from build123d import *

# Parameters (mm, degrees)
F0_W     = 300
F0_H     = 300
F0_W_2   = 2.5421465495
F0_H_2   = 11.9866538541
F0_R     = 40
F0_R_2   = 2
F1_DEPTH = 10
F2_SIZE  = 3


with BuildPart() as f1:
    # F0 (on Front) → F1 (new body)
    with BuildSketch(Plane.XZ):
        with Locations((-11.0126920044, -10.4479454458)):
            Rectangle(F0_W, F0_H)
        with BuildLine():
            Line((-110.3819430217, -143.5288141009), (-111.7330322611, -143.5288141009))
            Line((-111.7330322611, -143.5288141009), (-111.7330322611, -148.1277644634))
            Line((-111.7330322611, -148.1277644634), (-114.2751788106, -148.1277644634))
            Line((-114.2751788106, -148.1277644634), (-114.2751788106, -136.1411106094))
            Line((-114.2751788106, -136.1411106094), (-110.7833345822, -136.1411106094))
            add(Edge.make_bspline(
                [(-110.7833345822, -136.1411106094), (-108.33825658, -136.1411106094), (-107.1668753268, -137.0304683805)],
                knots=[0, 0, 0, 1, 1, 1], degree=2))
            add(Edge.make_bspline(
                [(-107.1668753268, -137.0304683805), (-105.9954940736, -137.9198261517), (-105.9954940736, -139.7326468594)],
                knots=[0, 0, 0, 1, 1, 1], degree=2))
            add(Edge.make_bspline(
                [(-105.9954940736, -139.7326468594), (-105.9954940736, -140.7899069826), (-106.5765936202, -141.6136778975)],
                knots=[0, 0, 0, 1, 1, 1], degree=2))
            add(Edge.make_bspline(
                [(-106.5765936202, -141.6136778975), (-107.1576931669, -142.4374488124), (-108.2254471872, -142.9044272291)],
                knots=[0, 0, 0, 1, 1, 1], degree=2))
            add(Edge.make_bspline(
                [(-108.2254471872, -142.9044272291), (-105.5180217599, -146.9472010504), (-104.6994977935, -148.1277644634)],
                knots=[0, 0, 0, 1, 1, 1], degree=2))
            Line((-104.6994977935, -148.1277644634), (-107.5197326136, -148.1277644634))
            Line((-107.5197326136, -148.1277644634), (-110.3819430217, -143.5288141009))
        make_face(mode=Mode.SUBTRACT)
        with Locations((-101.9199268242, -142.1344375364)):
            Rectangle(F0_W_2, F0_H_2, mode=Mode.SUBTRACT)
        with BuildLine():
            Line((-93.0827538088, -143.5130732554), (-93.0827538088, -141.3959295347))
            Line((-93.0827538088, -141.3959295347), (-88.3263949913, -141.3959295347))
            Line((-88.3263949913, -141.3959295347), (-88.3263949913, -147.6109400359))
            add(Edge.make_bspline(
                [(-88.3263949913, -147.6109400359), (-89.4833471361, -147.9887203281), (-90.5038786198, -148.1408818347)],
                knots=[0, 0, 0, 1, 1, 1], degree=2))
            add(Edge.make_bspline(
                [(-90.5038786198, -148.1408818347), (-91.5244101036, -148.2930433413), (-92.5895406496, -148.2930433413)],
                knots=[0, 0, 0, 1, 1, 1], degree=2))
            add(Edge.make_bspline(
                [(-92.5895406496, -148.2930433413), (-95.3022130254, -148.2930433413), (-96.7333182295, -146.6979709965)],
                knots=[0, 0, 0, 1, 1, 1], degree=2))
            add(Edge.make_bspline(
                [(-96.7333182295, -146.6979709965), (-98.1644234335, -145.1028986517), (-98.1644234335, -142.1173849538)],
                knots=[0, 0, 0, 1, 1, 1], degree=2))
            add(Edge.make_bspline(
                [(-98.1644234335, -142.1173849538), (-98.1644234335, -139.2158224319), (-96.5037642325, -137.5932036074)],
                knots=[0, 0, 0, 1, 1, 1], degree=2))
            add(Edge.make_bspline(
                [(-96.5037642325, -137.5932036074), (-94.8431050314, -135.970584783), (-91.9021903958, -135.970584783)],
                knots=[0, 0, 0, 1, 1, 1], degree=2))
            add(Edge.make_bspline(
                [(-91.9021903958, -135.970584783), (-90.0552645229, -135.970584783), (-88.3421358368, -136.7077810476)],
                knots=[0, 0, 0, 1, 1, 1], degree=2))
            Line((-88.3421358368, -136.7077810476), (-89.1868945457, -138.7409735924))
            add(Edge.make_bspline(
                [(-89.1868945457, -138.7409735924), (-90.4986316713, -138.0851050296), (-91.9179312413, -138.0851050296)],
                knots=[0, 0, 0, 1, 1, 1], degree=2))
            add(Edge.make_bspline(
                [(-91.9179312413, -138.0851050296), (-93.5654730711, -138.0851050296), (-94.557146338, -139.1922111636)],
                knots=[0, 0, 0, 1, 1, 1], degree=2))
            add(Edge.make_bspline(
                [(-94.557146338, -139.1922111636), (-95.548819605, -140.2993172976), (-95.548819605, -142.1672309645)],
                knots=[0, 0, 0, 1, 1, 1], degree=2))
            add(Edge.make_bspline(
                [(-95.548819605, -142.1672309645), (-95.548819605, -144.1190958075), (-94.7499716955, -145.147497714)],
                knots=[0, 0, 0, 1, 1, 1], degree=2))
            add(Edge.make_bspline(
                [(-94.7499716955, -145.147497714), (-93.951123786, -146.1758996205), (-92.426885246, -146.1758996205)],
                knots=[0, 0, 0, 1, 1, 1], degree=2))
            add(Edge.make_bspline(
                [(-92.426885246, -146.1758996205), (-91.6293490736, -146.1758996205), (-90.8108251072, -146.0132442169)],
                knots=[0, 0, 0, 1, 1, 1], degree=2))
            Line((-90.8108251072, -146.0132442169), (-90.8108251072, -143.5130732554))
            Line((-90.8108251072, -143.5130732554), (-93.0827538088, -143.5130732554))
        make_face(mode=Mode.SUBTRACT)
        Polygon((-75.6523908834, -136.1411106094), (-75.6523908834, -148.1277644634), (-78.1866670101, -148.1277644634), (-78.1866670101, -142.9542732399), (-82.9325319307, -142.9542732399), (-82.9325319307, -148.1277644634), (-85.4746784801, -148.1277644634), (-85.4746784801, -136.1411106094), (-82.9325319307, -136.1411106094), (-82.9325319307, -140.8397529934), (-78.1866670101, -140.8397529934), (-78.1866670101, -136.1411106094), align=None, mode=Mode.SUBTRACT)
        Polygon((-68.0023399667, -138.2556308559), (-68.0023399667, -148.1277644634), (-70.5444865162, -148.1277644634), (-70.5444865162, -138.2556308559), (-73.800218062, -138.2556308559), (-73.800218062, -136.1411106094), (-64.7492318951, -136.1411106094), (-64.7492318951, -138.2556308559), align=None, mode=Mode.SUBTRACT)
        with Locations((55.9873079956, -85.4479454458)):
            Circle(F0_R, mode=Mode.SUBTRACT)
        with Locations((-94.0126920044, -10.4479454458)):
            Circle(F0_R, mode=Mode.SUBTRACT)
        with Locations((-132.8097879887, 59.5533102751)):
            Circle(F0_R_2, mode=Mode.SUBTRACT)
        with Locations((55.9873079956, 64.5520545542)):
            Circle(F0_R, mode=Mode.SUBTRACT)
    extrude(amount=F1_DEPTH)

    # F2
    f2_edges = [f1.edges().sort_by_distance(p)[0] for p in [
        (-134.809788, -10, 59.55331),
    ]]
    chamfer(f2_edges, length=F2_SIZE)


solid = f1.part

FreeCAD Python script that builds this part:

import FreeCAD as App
import Part
import Sketcher
from FreeCAD import Vector


def edges_at(feature, points):
    """Names of the edges that pass closest to the given points."""
    edges = feature.Shape.Edges
    near = lambda p: min(range(len(edges)), key=lambda i: edges[i].distToShape(Part.Vertex(*p))[0])
    return sorted({f"Edge{near(p) + 1}" for p in points})


def add_polygon(sketch, points):
    """Adds a closed chain of lines whose ends are joined by coincident constraints."""
    first, n = sketch.GeometryCount, len(points)
    for a, b in zip(points, points[1:] + points[:1]):
        sketch.addGeometry(Part.LineSegment(App.Vector(*a, 0), App.Vector(*b, 0)), False)
    for i in range(n):
        sketch.addConstraint(Sketcher.Constraint("Coincident", first + i, 2, first + (i + 1) % n, 1))

doc = App.newDocument("Part")
body = doc.addObject("PartDesign::Body", "Body")

sketch1 = body.newObject("Sketcher::SketchObject", "Sketch")
sketch1.AttachmentSupport = (doc.getObject("XZ_Plane"), [""])
sketch1.MapMode = "FlatFace"
add_polygon(sketch1, [(-161.012692, 139.552055), (-161.012692, -160.447945), (138.987308, -160.447945), (138.987308, 139.552055)])
sketch1.addGeometry(Part.LineSegment(Vector(-107.519733, -148.127764, 0), Vector(-110.381943, -143.528814, 0)), False)
sketch1.addGeometry(Part.LineSegment(Vector(-110.381943, -143.528814, 0), Vector(-111.733032, -143.528814, 0)), False)
sketch1.addGeometry(Part.LineSegment(Vector(-111.733032, -143.528814, 0), Vector(-111.733032, -148.127764, 0)), False)
sketch1.addGeometry(Part.LineSegment(Vector(-111.733032, -148.127764, 0), Vector(-114.275179, -148.127764, 0)), False)
sketch1.addGeometry(Part.LineSegment(Vector(-114.275179, -148.127764, 0), Vector(-114.275179, -136.141111, 0)), False)
sketch1.addGeometry(Part.LineSegment(Vector(-114.275179, -136.141111, 0), Vector(-110.783335, -136.141111, 0)), False)
sketch1.addGeometry(Part.BSplineCurve([Vector(-110.783335, -136.141111, 0), Vector(-108.338257, -136.141111, 0), Vector(-107.166875, -137.030468, 0)], [3, 3], [0, 1], False, 2, [1, 1, 1], False), False)
sketch1.addGeometry(Part.BSplineCurve([Vector(-107.166875, -137.030468, 0), Vector(-105.995494, -137.919826, 0), Vector(-105.995494, -140.789907, 0), Vector(-106.576594, -141.613678, 0)], [3, 1, 3], [0, 1, 1.583212735], False, 2, [1, 1, 1, 1], False), False)
sketch1.addGeometry(Part.BSplineCurve([Vector(-106.576594, -141.613678, 0), Vector(-107.157693, -142.437449, 0), Vector(-108.225447, -142.904427, 0)], [3, 3], [0, 1], False, 2, [1, 1, 1], False), False)
sketch1.addGeometry(Part.BSplineCurve([Vector(-108.225447, -142.904427, 0), Vector(-105.518022, -146.947201, 0), Vector(-104.699498, -148.127764, 0)], [3, 3], [0, 1], False, 2, [1, 1, 1], False), False)
sketch1.addGeometry(Part.LineSegment(Vector(-104.699498, -148.127764, 0), Vector(-107.519733, -148.127764, 0)), False)
add_polygon(sketch1, [(-100.648854, -148.127764), (-103.191, -148.127764), (-103.191, -136.141111), (-100.648854, -136.141111)])
sketch1.addGeometry(Part.LineSegment(Vector(-90.810825, -143.513073, 0), Vector(-93.082754, -143.513073, 0)), False)
sketch1.addGeometry(Part.LineSegment(Vector(-93.082754, -143.513073, 0), Vector(-93.082754, -141.39593, 0)), False)
sketch1.addGeometry(Part.LineSegment(Vector(-93.082754, -141.39593, 0), Vector(-88.326395, -141.39593, 0)), False)
sketch1.addGeometry(Part.LineSegment(Vector(-88.326395, -141.39593, 0), Vector(-88.326395, -147.61094, 0)), False)
sketch1.addGeometry(Part.BSplineCurve([Vector(-88.326395, -147.61094, 0), Vector(-89.483347, -147.98872, 0), Vector(-90.503879, -148.140882, 0)], [3, 3], [0, 1], False, 2, [1, 1, 1], False), False)
sketch1.addGeometry(Part.BSplineCurve([Vector(-90.503879, -148.140882, 0), Vector(-91.52441, -148.293043, 0), Vector(-95.302213, -148.293043, 0), Vector(-96.733318, -146.697971, 0)], [3, 1, 3], [0, 1, 3.54679803], False, 2, [1, 1, 1, 1], False), False)
sketch1.addGeometry(Part.BSplineCurve([Vector(-96.733318, -146.697971, 0), Vector(-98.164423, -145.102899, 0), Vector(-98.164423, -139.215822, 0), Vector(-96.503764, -137.593204, 0)], [3, 1, 3], [0, 1, 1.971880492], False, 2, [1, 1, 1, 1], False), False)
sketch1.addGeometry(Part.BSplineCurve([Vector(-96.503764, -137.593204, 0), Vector(-94.843105, -135.970585, 0), Vector(-90.055265, -135.970585, 0), Vector(-88.342136, -136.707781, 0)], [3, 1, 3], [0, 1, 1.628010705], False, 2, [1, 1, 1, 1], False), False)
sketch1.addGeometry(Part.LineSegment(Vector(-88.342136, -136.707781, 0), Vector(-89.186895, -138.740974, 0)), False)
sketch1.addGeometry(Part.BSplineCurve([Vector(-89.186895, -138.740974, 0), Vector(-90.498632, -138.085105, 0), Vector(-93.565473, -138.085105, 0), Vector(-94.557146, -139.192211, 0)], [3, 1, 3], [0, 1, 2.160813309], False, 2, [1, 1, 1, 1], False), False)
sketch1.addGeometry(Part.BSplineCurve([Vector(-94.557146, -139.192211, 0), Vector(-95.54882, -140.299317, 0), Vector(-95.54882, -144.119096, 0), Vector(-93.951124, -146.1759, 0), Vector(-91.629349, -146.1759, 0), Vector(-90.810825, -146.013244, 0)], [3, 1, 1, 1, 3], [0, 1, 2.04494382, 3.089887641, 3.636639657], False, 2, [1, 1, 1, 1, 1, 1], False), False)
sketch1.addGeometry(Part.LineSegment(Vector(-90.810825, -146.013244, 0), Vector(-90.810825, -143.513073, 0)), False)
add_polygon(sketch1, [(-78.186667, -136.141111), (-75.652391, -136.141111), (-75.652391, -148.127764), (-78.186667, -148.127764), (-78.186667, -142.954273), (-82.932532, -142.954273), (-82.932532, -148.127764), (-85.474678, -148.127764), (-85.474678, -136.141111), (-82.932532, -136.141111), (-82.932532, -140.839753), (-78.186667, -140.839753)])
add_polygon(sketch1, [(-64.749232, -138.255631), (-68.00234, -138.255631), (-68.00234, -148.127764), (-70.544487, -148.127764), (-70.544487, -138.255631), (-73.800218, -138.255631), (-73.800218, -136.141111), (-64.749232, -136.141111)])
sketch1.addGeometry(Part.Circle(Vector(55.987308, -85.447945, 0), Vector(0, 0, 1), 40), False)
sketch1.addGeometry(Part.Circle(Vector(-94.012692, -10.447945, 0), Vector(0, 0, 1), 40), False)
sketch1.addGeometry(Part.Circle(Vector(-132.809788, 59.55331, 0), Vector(0, 0, 1), 2), False)
sketch1.addGeometry(Part.Circle(Vector(55.987308, 64.552055, 0), Vector(0, 0, 1), 40), False)
sketch1.addConstraint([
    Sketcher.Constraint("Block", 10),
    Sketcher.Constraint("Block", 11),
    Sketcher.Constraint("Block", 12),
    Sketcher.Constraint("Block", 13),
    Sketcher.Constraint("Block", 23),
    Sketcher.Constraint("Block", 24),
    Sketcher.Constraint("Block", 25),
    Sketcher.Constraint("Block", 26),
    Sketcher.Constraint("Block", 28),
    Sketcher.Constraint("Block", 29),
    Sketcher.Constraint("Coincident", 4, 2, 5, 1),
    Sketcher.Constraint("Coincident", 5, 2, 6, 1),
    Sketcher.Constraint("Coincident", 6, 2, 7, 1),
    Sketcher.Constraint("Coincident", 7, 2, 8, 1),
    Sketcher.Constraint("Coincident", 8, 2, 9, 1),
    Sketcher.Constraint("Coincident", 9, 2, 10, 1),
    Sketcher.Constraint("Coincident", 13, 2, 14, 1),
    Sketcher.Constraint("Coincident", 14, 2, 4, 1),
    Sketcher.Constraint("Coincident", 19, 2, 20, 1),
    Sketcher.Constraint("Coincident", 20, 2, 21, 1),
    Sketcher.Constraint("Coincident", 21, 2, 22, 1),
    Sketcher.Constraint("Coincident", 22, 2, 23, 1),
    Sketcher.Constraint("Coincident", 26, 2, 27, 1),
    Sketcher.Constraint("Coincident", 27, 2, 28, 1),
    Sketcher.Constraint("Coincident", 29, 2, 30, 1),
    Sketcher.Constraint("Coincident", 30, 2, 19, 1),
    Sketcher.Constraint("Vertical", 0),
    Sketcher.Constraint("Horizontal", 1),
    Sketcher.Constraint("Vertical", 2),
    Sketcher.Constraint("Horizontal", 3),
    Sketcher.Constraint("Horizontal", 5),
    Sketcher.Constraint("Vertical", 6),
    Sketcher.Constraint("Horizontal", 7),
    Sketcher.Constraint("Vertical", 8),
    Sketcher.Constraint("Horizontal", 9),
    Sketcher.Constraint("Horizontal", 14),
    Sketcher.Constraint("Horizontal", 15),
    Sketcher.Constraint("Vertical", 16),
    Sketcher.Constraint("Horizontal", 17),
    Sketcher.Constraint("Vertical", 18),
    Sketcher.Constraint("Horizontal", 19),
    Sketcher.Constraint("Vertical", 20),
    Sketcher.Constraint("Horizontal", 21),
    Sketcher.Constraint("Vertical", 22),
    Sketcher.Constraint("Vertical", 30),
    Sketcher.Constraint("Horizontal", 31),
    Sketcher.Constraint("Vertical", 32),
    Sketcher.Constraint("Horizontal", 33),
    Sketcher.Constraint("Vertical", 34),
    Sketcher.Constraint("Horizontal", 35),
    Sketcher.Constraint("Vertical", 36),
    Sketcher.Constraint("Horizontal", 37),
    Sketcher.Constraint("Vertical", 38),
    Sketcher.Constraint("Horizontal", 39),
    Sketcher.Constraint("Vertical", 40),
    Sketcher.Constraint("Horizontal", 41),
    Sketcher.Constraint("Vertical", 42),
    Sketcher.Constraint("Horizontal", 43),
    Sketcher.Constraint("Vertical", 44),
    Sketcher.Constraint("Horizontal", 45),
    Sketcher.Constraint("Vertical", 46),
    Sketcher.Constraint("Horizontal", 47),
    Sketcher.Constraint("Vertical", 48),
    Sketcher.Constraint("Horizontal", 49),
    Sketcher.Constraint("Vertical", 50),
    Sketcher.Constraint("Equal", 51, 52),
    Sketcher.Constraint("Equal", 52, 54),
    Sketcher.Constraint("Horizontal", 7, 2, 14, 2),
    Sketcher.Constraint("Horizontal", 14, 2, 15, 2),
    Sketcher.Constraint("Horizontal", 9, 2, 16, 2),
    Sketcher.Constraint("Horizontal", 17, 2, 31, 2),
    Sketcher.Constraint("Horizontal", 18, 2, 32, 2),
    Sketcher.Constraint("Horizontal", 33, 2, 36, 2),
    Sketcher.Constraint("Horizontal", 31, 2, 38, 2),
    Sketcher.Constraint("Horizontal", 37, 2, 44, 2),
    Sketcher.Constraint("Horizontal", 43, 2, 46, 2),
    Sketcher.Constraint("Horizontal", 42, 2, 48, 2),
    Sketcher.Constraint("Vertical", 51, 3, 54, 3),
    Sketcher.Constraint("Vertical", 36, 2, 39, 2),
    Sketcher.Constraint("Vertical", 34, 2, 41, 2),
    Sketcher.Constraint("Equal", 7, 15),
    Sketcher.Constraint("Equal", 17, 37),
    Sketcher.Constraint("Equal", 39, 45),
    Sketcher.Constraint("Equal", 3, 0),
    Sketcher.Constraint("Diameter", 51, 80.0),
    Sketcher.Constraint("Diameter", 53, 4.0),
    Sketcher.Constraint("DistanceX", 1, 1, 1, 2, 300.0),
    Sketcher.Constraint("DistanceX", 52, 3, 51, 3, 150.0),
    Sketcher.Constraint("DistanceY", 51, 3, 52, 3, 75.0),
    Sketcher.Constraint("DistanceY", 51, 3, 54, 3, 150.0),
    Sketcher.Constraint("DistanceX", 0, 2, 52, 3, 67.0),
    Sketcher.Constraint("DistanceY", 0, 2, 52, 3, 150.0),
    Sketcher.Constraint("DistanceX", 15, 2, -1, 1, 103.191),
    Sketcher.Constraint("DistanceX", 5, 2, 5, 1, 1.351089),
    Sketcher.Constraint("DistanceX", 19, 2, 19, 1, 2.271929),
    Sketcher.Constraint("DistanceX", 43, 2, 43, 1, 3.253108),
    Sketcher.Constraint("DistanceX", 47, 2, 47, 1, 3.255732),
    Sketcher.Constraint("DistanceY", 6, 2, 6, 1, 4.59895),
    Sketcher.Constraint("DistanceY", 22, 2, 22, 1, 6.215011),
    Sketcher.Constraint("DistanceY", 30, 1, 30, 2, 2.500171),
    Sketcher.Constraint("DistanceY", 34, 1, 34, 2, 5.173491),
    Sketcher.Constraint("DistanceY", 48, 1, 48, 2, 2.11452),
    Sketcher.Constraint("DistanceX", 6, 2, 14, 2, 4.2133),
    Sketcher.Constraint("DistanceX", 9, 2, 14, 2, 3.263602),
    Sketcher.Constraint("DistanceX", 18, 2, 19, 2, 7.5661),
    Sketcher.Constraint("DistanceX", 31, 1, 31, 2, 2.534276),
    Sketcher.Constraint("DistanceX", 35, 2, 35, 1, 4.745865),
    Sketcher.Constraint("DistanceY", 40, 2, 40, 1, 4.698642),
    Sketcher.Constraint("DistanceY", -1, 1, 53, 3, 59.55331),
    Sketcher.Constraint("DistanceX", 31, 2, -1, 1, 75.652391),
    Sketcher.Constraint("DistanceX", 43, 2, -1, 1, 68.00234),
    Sketcher.Constraint("DistanceX", 0, 2, 4, 2, 50.630749),
    Sketcher.Constraint("DistanceY", 0, 2, 4, 2, 16.919131),
    Sketcher.Constraint("DistanceX", 53, 3, -1, 1, 132.809788),
])
pad1 = body.newObject("PartDesign::Pad", "Pad")
pad1.Profile = sketch1
pad1.Length = 10
doc.recompute()

chamfer = body.newObject("PartDesign::Chamfer", "Chamfer")
chamfer.Base = (pad1, edges_at(pad1, [(-134.81, -10, 59.553)]))
chamfer.Size = 3

doc.recompute()
